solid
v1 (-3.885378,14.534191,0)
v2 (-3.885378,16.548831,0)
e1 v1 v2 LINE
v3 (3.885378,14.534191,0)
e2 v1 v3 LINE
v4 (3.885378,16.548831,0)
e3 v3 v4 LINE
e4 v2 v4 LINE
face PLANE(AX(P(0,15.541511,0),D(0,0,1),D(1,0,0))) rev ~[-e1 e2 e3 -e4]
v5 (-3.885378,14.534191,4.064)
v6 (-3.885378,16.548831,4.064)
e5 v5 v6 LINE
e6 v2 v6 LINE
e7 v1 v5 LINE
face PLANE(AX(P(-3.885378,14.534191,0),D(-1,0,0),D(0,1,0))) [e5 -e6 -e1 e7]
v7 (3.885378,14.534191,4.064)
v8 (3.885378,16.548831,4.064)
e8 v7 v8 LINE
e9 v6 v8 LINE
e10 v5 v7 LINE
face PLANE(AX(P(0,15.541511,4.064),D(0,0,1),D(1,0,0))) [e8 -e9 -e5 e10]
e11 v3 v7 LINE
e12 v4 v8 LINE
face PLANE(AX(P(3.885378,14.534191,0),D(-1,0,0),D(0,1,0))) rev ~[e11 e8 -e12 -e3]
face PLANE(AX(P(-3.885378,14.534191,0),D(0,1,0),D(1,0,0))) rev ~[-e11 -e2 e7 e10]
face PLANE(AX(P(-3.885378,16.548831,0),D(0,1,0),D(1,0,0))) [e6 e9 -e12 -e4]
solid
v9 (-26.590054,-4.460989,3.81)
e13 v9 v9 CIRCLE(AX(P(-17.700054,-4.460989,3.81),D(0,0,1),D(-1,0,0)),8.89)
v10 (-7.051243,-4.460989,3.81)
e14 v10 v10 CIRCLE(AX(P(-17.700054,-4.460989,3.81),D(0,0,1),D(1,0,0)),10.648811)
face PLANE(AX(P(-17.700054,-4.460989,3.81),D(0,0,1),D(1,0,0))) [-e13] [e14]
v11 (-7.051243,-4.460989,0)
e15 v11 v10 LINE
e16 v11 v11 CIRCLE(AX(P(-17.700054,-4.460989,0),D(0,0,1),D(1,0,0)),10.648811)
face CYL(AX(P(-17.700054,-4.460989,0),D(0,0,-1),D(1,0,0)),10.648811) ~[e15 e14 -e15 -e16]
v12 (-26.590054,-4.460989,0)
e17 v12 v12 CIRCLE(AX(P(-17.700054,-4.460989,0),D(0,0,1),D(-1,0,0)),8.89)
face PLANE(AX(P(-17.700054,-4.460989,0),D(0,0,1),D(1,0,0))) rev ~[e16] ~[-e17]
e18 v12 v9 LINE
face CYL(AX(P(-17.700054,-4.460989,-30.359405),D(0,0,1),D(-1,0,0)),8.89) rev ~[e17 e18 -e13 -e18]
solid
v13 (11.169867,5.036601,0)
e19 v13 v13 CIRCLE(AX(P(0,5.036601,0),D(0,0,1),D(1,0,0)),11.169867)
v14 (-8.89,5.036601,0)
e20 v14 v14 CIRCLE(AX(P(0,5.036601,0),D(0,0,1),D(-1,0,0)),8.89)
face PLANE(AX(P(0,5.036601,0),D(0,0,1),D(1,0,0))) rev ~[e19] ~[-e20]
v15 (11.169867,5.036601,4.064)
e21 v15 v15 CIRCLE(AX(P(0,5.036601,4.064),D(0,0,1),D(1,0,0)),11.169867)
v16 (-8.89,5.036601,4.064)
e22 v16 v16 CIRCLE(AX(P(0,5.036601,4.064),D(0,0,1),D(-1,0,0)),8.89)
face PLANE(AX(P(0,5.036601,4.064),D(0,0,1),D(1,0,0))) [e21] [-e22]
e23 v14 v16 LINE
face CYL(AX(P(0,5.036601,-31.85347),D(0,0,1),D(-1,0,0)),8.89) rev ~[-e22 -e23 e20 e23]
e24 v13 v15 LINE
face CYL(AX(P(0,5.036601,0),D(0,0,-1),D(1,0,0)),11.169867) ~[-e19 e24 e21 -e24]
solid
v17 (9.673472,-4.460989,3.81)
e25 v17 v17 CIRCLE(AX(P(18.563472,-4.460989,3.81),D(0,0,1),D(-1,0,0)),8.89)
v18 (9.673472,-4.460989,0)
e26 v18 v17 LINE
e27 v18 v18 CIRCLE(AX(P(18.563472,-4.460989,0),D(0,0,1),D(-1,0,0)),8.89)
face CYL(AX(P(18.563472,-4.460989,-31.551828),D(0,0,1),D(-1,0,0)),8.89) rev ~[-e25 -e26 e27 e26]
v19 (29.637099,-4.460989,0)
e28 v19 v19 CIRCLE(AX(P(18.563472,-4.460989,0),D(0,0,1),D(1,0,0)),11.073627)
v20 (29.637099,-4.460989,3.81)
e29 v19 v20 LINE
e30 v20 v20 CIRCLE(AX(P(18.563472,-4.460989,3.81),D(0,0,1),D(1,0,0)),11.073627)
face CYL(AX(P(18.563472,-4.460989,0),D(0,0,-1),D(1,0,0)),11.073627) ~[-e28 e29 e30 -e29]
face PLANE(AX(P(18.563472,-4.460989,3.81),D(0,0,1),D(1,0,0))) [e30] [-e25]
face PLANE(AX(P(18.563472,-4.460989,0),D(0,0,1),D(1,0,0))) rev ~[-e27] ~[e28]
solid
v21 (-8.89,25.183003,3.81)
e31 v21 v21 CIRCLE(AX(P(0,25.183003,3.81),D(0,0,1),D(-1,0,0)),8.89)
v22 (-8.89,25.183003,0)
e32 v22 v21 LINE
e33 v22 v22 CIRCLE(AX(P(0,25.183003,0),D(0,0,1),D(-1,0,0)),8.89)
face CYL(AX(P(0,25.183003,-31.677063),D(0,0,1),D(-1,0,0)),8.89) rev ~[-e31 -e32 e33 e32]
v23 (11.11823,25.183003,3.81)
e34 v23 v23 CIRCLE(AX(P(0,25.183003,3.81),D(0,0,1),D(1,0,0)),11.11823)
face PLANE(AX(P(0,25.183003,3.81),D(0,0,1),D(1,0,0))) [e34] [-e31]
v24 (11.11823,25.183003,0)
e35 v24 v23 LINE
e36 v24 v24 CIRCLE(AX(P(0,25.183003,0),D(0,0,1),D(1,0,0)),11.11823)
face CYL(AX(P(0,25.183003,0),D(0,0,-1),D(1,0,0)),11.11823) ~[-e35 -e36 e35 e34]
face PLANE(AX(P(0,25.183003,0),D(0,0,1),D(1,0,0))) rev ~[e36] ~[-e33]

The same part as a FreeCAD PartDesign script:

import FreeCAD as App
import Part
import Sketcher

V = App.Vector
Q = App.Units.Quantity


def add_polygon(sketch, points):
    """Adds a closed chain of lines whose ends are joined by coincident constraints."""
    first, n = sketch.GeometryCount, len(points)
    for a, b in zip(points, points[1:] + points[:1]):
        sketch.addGeometry(Part.LineSegment(App.Vector(*a, 0), App.Vector(*b, 0)), False)
    for i in range(n):
        sketch.addConstraint(Sketcher.Constraint("Coincident", first + i, 2, first + (i + 1) % n, 1))

doc = App.newDocument("Part")
params = doc.addObject("Spreadsheet::Sheet", "Params")
for row, (alias, value) in enumerate([
    ("pad1_length", "0.15 in"),
    ("sketch2_diameter", "0.7 in"),
    ("hole_diameter", "0.7 in"),
    ("pad2_length", "0.15 in"),
    ("sketch4_diameter", "0.7 in"),
    ("hole2_diameter", "0.7 in"),
    ("pad3_length", "0.15 in"),
    ("sketch6_diameter", "0.7 in"),
    ("hole3_diameter", "0.7 in"),
    ("pad4_length", "0.16 in"),
    ("sketch8_diameter", "0.7 in"),
    ("hole4_diameter", "0.7 in"),
    ("pad5_length", "0.16 in"),
], start=1):
    params.set(f"A{row}", alias)
    params.set(f"B{row}", "=" + value)
    params.setAlias(f"B{row}", alias)

body = doc.addObject("PartDesign::Body", "Body")

# Sketch on XY plane
sketch1 = doc.addObject("Sketcher::SketchObject", "Sketch")
body.addObject(sketch1)
sketch1.AttachmentSupport = (doc.XY_Plane, [""])
sketch1.MapMode = "FlatFace"
sketch1.addGeometry(Part.Circle(V(0, 25.183003, 0), V(0, 0, 1), 11.11823), False)
sketch1.addConstraint(Sketcher.Constraint("PointOnObject", 0, 3, -2))
sketch1.addConstraint(Sketcher.Constraint("Diameter", 0, 22.236459))
sketch1.addConstraint(Sketcher.Constraint("DistanceY", -1, 1, 0, 3, 25.183003))
pad1 = doc.addObject("PartDesign::Pad", "Pad")
body.addObject(pad1)
pad1.Profile = sketch1
pad1.setExpression("Length", "Params.pad1_length")

# Sketch on XY plane
sketch2 = doc.addObject("Sketcher::SketchObject", "Sketch001")
body.addObject(sketch2)
sketch2.AttachmentSupport = (doc.XY_Plane, [""])
sketch2.MapMode = "FlatFace"
sketch2.addGeometry(Part.Circle(V(0, 25.183003, 0), V(0, 0, 1), 8.89), False)
sketch2.addGeometry(Part.Circle(V(-17.700054, -4.460989, 0), V(0, 0, 1), 8.89), False)
sketch2.addGeometry(Part.Circle(V(18.563472, -4.460989, 0), V(0, 0, 1), 8.89), False)
sketch2.addConstraint(Sketcher.Constraint("Equal", 0, 1))
sketch2.addConstraint(Sketcher.Constraint("Equal", 1, 2))
sketch2.addConstraint(Sketcher.Constraint("PointOnObject", 0, 3, -2))
sketch2.addConstraint(Sketcher.Constraint("Horizontal", 1, 3, 2, 3))
sketch2.addConstraint(Sketcher.Constraint("Diameter", 0, Q("0.7 in")))
sketch2.addConstraint(Sketcher.Constraint("DistanceY", 1, 3, -1, 1, 4.460989))
sketch2.addConstraint(Sketcher.Constraint("DistanceX", -1, 1, 2, 3, 18.563472))
sketch2.addConstraint(Sketcher.Constraint("DistanceY", -1, 1, 0, 3, 25.183003))
sketch2.addConstraint(Sketcher.Constraint("DistanceX", 1, 3, -1, 1, 17.700054))
sketch2.setExpression("Constraints[4]", "Params.sketch2_diameter")
doc.recompute()
hole = doc.addObject("PartDesign::Hole", "Hole")
body.addObject(hole)
hole.Profile = sketch2
hole.ThreadType = "None"
hole.setExpression("Diameter", "Params.hole_diameter")
hole.DepthType = "ThroughAll"
hole.Reversed = True
body2 = doc.addObject("PartDesign::Body", "Body001")

# Sketch on XY plane
sketch3 = doc.addObject("Sketcher::SketchObject", "Sketch002")
body2.addObject(sketch3)
sketch3.AttachmentSupport = (doc.getObject("XY_Plane001"), [""])
sketch3.MapMode = "FlatFace"
sketch3.addGeometry(Part.Circle(V(-17.700054, -4.460989, 0), V(0, 0, 1), 10.648811), False)
sketch3.addConstraint(Sketcher.Constraint("Diameter", 0, 21.297622))
sketch3.addConstraint(Sketcher.Constraint("DistanceY", 0, 3, -1, 1, 4.460989))
sketch3.addConstraint(Sketcher.Constraint("DistanceX", 0, 3, -1, 1, 17.700054))
pad2 = doc.addObject("PartDesign::Pad", "Pad001")
body2.addObject(pad2)
pad2.Profile = sketch3
pad2.setExpression("Length", "Params.pad2_length")

# Sketch on XY plane
sketch4 = doc.addObject("Sketcher::SketchObject", "Sketch003")
body2.addObject(sketch4)
sketch4.AttachmentSupport = (doc.getObject("XY_Plane001"), [""])
sketch4.MapMode = "FlatFace"
sketch4.addGeometry(Part.Circle(V(0, 25.183003, 0), V(0, 0, 1), 8.89), False)
sketch4.addGeometry(Part.Circle(V(-17.700054, -4.460989, 0), V(0, 0, 1), 8.89), False)
sketch4.addGeometry(Part.Circle(V(18.563472, -4.460989, 0), V(0, 0, 1), 8.89), False)
sketch4.addConstraint(Sketcher.Constraint("Equal", 0, 1))
sketch4.addConstraint(Sketcher.Constraint("Equal", 1, 2))
sketch4.addConstraint(Sketcher.Constraint("PointOnObject", 0, 3, -2))
sketch4.addConstraint(Sketcher.Constraint("Horizontal", 1, 3, 2, 3))
sketch4.addConstraint(Sketcher.Constraint("Diameter", 0, Q("0.7 in")))
sketch4.addConstraint(Sketcher.Constraint("DistanceY", 1, 3, -1, 1, 4.460989))
sketch4.addConstraint(Sketcher.Constraint("DistanceX", -1, 1, 2, 3, 18.563472))
sketch4.addConstraint(Sketcher.Constraint("DistanceY", -1, 1, 0, 3, 25.183003))
sketch4.addConstraint(Sketcher.Constraint("DistanceX", 1, 3, -1, 1, 17.700054))
sketch4.setExpression("Constraints[4]", "Params.sketch4_diameter")
doc.recompute()
hole2 = doc.addObject("PartDesign::Hole", "Hole001")
body2.addObject(hole2)
hole2.Profile = sketch4
hole2.ThreadType = "None"
hole2.setExpression("Diameter", "Params.hole2_diameter")
hole2.DepthType = "ThroughAll"
hole2.Reversed = True
body3 = doc.addObject("PartDesign::Body", "Body002")

# Sketch on XY plane
sketch5 = doc.addObject("Sketcher::SketchObject", "Sketch004")
body3.addObject(sketch5)
sketch5.AttachmentSupport = (doc.getObject("XY_Plane002"), [""])
sketch5.MapMode = "FlatFace"
sketch5.addGeometry(Part.Circle(V(18.563472, -4.460989, 0), V(0, 0, 1), 11.073627), False)
sketch5.addConstraint(Sketcher.Constraint("Diameter", 0, 22.147254))
sketch5.addConstraint(Sketcher.Constraint("DistanceX", -1, 1, 0, 3, 18.563472))
sketch5.addConstraint(Sketcher.Constraint("DistanceY", 0, 3, -1, 1, 4.460989))
pad3 = doc.addObject("PartDesign::Pad", "Pad002")
body3.addObject(pad3)
pad3.Profile = sketch5
pad3.setExpression("Length", "Params.pad3_length")

# Sketch on XY plane
sketch6 = doc.addObject("Sketcher::SketchObject", "Sketch005")
body3.addObject(sketch6)
sketch6.AttachmentSupport = (doc.getObject("XY_Plane002"), [""])
sketch6.MapMode = "FlatFace"
sketch6.addGeometry(Part.Circle(V(0, 25.183003, 0), V(0, 0, 1), 8.89), False)
sketch6.addGeometry(Part.Circle(V(-17.700054, -4.460989, 0), V(0, 0, 1), 8.89), False)
sketch6.addGeometry(Part.Circle(V(18.563472, -4.460989, 0), V(0, 0, 1), 8.89), False)
sketch6.addConstraint(Sketcher.Constraint("Equal", 0, 1))
sketch6.addConstraint(Sketcher.Constraint("Equal", 1, 2))
sketch6.addConstraint(Sketcher.Constraint("PointOnObject", 0, 3, -2))
sketch6.addConstraint(Sketcher.Constraint("Horizontal", 1, 3, 2, 3))
sketch6.addConstraint(Sketcher.Constraint("Diameter", 0, Q("0.7 in")))
sketch6.addConstraint(Sketcher.Constraint("DistanceY", 1, 3, -1, 1, 4.460989))
sketch6.addConstraint(Sketcher.Constraint("DistanceX", -1, 1, 2, 3, 18.563472))
sketch6.addConstraint(Sketcher.Constraint("DistanceY", -1, 1, 0, 3, 25.183003))
sketch6.addConstraint(Sketcher.Constraint("DistanceX", 1, 3, -1, 1, 17.700054))
sketch6.setExpression("Constraints[4]", "Params.sketch6_diameter")
doc.recompute()
hole3 = doc.addObject("PartDesign::Hole", "Hole002")
body3.addObject(hole3)
hole3.Profile = sketch6
hole3.ThreadType = "None"
hole3.setExpression("Diameter", "Params.hole3_diameter")
hole3.DepthType = "ThroughAll"
hole3.Reversed = True
body4 = doc.addObject("PartDesign::Body", "Body003")

# Sketch on XY plane
sketch7 = doc.addObject("Sketcher::SketchObject", "Sketch006")
body4.addObject(sketch7)
sketch7.AttachmentSupport = (doc.getObject("XY_Plane003"), [""])
sketch7.MapMode = "FlatFace"
sketch7.addGeometry(Part.Circle(V(0, 5.036601, 0), V(0, 0, 1), 11.169867), False)
sketch7.addConstraint(Sketcher.Constraint("PointOnObject", 0, 3, -2))
sketch7.addConstraint(Sketcher.Constraint("Diameter", 0, 22.339734))
sketch7.addConstraint(Sketcher.Constraint("DistanceY", -1, 1, 0, 3, 5.036601))
pad4 = doc.addObject("PartDesign::Pad", "Pad003")
body4.addObject(pad4)
pad4.Profile = sketch7
pad4.setExpression("Length", "Params.pad4_length")

# Sketch on XY plane
sketch8 = doc.addObject("Sketcher::SketchObject", "Sketch007")
body4.addObject(sketch8)
sketch8.AttachmentSupport = (doc.getObject("XY_Plane003"), [""])
sketch8.MapMode = "FlatFace"
sketch8.addGeometry(Part.Circle(V(0, 5.036601, 0), V(0, 0, 1), 8.89), False)
sketch8.addConstraint(Sketcher.Constraint("PointOnObject", 0, 3, -2))
sketch8.addConstraint(Sketcher.Constraint("Diameter", 0, Q("0.7 in")))
sketch8.addConstraint(Sketcher.Constraint("DistanceY", -1, 1, 0, 3, 5.036601))
sketch8.setExpression("Constraints[1]", "Params.sketch8_diameter")
doc.recompute()
hole4 = doc.addObject("PartDesign::Hole", "Hole003")
body4.addObject(hole4)
hole4.Profile = sketch8
hole4.ThreadType = "None"
hole4.setExpression("Diameter", "Params.hole4_diameter")
hole4.DepthType = "ThroughAll"
hole4.Reversed = True
body5 = doc.addObject("PartDesign::Body", "Body004")

# Sketch on XY plane
sketch9 = doc.addObject("Sketcher::SketchObject", "Sketch008")
body5.addObject(sketch9)
sketch9.AttachmentSupport = (doc.getObject("XY_Plane004"), [""])
sketch9.MapMode = "FlatFace"
add_polygon(sketch9, [(-3.885378, 16.548831), (-3.885378, 14.534191), (3.885378, 14.534191), (3.885378, 16.548831)])  # lines 0-3
sketch9.addConstraint(Sketcher.Constraint("Vertical", 0))
sketch9.addConstraint(Sketcher.Constraint("Horizontal", 1))
sketch9.addConstraint(Sketcher.Constraint("Vertical", 2))
sketch9.addConstraint(Sketcher.Constraint("Horizontal", 3))
sketch9.addConstraint(Sketcher.Constraint("DistanceY", 0, 2, 0, 1, 2.01464))
sketch9.addConstraint(Sketcher.Constraint("DistanceX", 1, 1, 1, 2, 7.770755))
sketch9.addConstraint(Sketcher.Constraint("DistanceY", -1, 1, 0, 2, 14.534191))
sketch9.addConstraint(Sketcher.Constraint("DistanceX", 0, 2, -1, 1, 3.885378))
pad5 = doc.addObject("PartDesign::Pad", "Pad004")
body5.addObject(pad5)
pad5.Profile = sketch9
pad5.setExpression("Length", "Params.pad5_length")

doc.recompute()
